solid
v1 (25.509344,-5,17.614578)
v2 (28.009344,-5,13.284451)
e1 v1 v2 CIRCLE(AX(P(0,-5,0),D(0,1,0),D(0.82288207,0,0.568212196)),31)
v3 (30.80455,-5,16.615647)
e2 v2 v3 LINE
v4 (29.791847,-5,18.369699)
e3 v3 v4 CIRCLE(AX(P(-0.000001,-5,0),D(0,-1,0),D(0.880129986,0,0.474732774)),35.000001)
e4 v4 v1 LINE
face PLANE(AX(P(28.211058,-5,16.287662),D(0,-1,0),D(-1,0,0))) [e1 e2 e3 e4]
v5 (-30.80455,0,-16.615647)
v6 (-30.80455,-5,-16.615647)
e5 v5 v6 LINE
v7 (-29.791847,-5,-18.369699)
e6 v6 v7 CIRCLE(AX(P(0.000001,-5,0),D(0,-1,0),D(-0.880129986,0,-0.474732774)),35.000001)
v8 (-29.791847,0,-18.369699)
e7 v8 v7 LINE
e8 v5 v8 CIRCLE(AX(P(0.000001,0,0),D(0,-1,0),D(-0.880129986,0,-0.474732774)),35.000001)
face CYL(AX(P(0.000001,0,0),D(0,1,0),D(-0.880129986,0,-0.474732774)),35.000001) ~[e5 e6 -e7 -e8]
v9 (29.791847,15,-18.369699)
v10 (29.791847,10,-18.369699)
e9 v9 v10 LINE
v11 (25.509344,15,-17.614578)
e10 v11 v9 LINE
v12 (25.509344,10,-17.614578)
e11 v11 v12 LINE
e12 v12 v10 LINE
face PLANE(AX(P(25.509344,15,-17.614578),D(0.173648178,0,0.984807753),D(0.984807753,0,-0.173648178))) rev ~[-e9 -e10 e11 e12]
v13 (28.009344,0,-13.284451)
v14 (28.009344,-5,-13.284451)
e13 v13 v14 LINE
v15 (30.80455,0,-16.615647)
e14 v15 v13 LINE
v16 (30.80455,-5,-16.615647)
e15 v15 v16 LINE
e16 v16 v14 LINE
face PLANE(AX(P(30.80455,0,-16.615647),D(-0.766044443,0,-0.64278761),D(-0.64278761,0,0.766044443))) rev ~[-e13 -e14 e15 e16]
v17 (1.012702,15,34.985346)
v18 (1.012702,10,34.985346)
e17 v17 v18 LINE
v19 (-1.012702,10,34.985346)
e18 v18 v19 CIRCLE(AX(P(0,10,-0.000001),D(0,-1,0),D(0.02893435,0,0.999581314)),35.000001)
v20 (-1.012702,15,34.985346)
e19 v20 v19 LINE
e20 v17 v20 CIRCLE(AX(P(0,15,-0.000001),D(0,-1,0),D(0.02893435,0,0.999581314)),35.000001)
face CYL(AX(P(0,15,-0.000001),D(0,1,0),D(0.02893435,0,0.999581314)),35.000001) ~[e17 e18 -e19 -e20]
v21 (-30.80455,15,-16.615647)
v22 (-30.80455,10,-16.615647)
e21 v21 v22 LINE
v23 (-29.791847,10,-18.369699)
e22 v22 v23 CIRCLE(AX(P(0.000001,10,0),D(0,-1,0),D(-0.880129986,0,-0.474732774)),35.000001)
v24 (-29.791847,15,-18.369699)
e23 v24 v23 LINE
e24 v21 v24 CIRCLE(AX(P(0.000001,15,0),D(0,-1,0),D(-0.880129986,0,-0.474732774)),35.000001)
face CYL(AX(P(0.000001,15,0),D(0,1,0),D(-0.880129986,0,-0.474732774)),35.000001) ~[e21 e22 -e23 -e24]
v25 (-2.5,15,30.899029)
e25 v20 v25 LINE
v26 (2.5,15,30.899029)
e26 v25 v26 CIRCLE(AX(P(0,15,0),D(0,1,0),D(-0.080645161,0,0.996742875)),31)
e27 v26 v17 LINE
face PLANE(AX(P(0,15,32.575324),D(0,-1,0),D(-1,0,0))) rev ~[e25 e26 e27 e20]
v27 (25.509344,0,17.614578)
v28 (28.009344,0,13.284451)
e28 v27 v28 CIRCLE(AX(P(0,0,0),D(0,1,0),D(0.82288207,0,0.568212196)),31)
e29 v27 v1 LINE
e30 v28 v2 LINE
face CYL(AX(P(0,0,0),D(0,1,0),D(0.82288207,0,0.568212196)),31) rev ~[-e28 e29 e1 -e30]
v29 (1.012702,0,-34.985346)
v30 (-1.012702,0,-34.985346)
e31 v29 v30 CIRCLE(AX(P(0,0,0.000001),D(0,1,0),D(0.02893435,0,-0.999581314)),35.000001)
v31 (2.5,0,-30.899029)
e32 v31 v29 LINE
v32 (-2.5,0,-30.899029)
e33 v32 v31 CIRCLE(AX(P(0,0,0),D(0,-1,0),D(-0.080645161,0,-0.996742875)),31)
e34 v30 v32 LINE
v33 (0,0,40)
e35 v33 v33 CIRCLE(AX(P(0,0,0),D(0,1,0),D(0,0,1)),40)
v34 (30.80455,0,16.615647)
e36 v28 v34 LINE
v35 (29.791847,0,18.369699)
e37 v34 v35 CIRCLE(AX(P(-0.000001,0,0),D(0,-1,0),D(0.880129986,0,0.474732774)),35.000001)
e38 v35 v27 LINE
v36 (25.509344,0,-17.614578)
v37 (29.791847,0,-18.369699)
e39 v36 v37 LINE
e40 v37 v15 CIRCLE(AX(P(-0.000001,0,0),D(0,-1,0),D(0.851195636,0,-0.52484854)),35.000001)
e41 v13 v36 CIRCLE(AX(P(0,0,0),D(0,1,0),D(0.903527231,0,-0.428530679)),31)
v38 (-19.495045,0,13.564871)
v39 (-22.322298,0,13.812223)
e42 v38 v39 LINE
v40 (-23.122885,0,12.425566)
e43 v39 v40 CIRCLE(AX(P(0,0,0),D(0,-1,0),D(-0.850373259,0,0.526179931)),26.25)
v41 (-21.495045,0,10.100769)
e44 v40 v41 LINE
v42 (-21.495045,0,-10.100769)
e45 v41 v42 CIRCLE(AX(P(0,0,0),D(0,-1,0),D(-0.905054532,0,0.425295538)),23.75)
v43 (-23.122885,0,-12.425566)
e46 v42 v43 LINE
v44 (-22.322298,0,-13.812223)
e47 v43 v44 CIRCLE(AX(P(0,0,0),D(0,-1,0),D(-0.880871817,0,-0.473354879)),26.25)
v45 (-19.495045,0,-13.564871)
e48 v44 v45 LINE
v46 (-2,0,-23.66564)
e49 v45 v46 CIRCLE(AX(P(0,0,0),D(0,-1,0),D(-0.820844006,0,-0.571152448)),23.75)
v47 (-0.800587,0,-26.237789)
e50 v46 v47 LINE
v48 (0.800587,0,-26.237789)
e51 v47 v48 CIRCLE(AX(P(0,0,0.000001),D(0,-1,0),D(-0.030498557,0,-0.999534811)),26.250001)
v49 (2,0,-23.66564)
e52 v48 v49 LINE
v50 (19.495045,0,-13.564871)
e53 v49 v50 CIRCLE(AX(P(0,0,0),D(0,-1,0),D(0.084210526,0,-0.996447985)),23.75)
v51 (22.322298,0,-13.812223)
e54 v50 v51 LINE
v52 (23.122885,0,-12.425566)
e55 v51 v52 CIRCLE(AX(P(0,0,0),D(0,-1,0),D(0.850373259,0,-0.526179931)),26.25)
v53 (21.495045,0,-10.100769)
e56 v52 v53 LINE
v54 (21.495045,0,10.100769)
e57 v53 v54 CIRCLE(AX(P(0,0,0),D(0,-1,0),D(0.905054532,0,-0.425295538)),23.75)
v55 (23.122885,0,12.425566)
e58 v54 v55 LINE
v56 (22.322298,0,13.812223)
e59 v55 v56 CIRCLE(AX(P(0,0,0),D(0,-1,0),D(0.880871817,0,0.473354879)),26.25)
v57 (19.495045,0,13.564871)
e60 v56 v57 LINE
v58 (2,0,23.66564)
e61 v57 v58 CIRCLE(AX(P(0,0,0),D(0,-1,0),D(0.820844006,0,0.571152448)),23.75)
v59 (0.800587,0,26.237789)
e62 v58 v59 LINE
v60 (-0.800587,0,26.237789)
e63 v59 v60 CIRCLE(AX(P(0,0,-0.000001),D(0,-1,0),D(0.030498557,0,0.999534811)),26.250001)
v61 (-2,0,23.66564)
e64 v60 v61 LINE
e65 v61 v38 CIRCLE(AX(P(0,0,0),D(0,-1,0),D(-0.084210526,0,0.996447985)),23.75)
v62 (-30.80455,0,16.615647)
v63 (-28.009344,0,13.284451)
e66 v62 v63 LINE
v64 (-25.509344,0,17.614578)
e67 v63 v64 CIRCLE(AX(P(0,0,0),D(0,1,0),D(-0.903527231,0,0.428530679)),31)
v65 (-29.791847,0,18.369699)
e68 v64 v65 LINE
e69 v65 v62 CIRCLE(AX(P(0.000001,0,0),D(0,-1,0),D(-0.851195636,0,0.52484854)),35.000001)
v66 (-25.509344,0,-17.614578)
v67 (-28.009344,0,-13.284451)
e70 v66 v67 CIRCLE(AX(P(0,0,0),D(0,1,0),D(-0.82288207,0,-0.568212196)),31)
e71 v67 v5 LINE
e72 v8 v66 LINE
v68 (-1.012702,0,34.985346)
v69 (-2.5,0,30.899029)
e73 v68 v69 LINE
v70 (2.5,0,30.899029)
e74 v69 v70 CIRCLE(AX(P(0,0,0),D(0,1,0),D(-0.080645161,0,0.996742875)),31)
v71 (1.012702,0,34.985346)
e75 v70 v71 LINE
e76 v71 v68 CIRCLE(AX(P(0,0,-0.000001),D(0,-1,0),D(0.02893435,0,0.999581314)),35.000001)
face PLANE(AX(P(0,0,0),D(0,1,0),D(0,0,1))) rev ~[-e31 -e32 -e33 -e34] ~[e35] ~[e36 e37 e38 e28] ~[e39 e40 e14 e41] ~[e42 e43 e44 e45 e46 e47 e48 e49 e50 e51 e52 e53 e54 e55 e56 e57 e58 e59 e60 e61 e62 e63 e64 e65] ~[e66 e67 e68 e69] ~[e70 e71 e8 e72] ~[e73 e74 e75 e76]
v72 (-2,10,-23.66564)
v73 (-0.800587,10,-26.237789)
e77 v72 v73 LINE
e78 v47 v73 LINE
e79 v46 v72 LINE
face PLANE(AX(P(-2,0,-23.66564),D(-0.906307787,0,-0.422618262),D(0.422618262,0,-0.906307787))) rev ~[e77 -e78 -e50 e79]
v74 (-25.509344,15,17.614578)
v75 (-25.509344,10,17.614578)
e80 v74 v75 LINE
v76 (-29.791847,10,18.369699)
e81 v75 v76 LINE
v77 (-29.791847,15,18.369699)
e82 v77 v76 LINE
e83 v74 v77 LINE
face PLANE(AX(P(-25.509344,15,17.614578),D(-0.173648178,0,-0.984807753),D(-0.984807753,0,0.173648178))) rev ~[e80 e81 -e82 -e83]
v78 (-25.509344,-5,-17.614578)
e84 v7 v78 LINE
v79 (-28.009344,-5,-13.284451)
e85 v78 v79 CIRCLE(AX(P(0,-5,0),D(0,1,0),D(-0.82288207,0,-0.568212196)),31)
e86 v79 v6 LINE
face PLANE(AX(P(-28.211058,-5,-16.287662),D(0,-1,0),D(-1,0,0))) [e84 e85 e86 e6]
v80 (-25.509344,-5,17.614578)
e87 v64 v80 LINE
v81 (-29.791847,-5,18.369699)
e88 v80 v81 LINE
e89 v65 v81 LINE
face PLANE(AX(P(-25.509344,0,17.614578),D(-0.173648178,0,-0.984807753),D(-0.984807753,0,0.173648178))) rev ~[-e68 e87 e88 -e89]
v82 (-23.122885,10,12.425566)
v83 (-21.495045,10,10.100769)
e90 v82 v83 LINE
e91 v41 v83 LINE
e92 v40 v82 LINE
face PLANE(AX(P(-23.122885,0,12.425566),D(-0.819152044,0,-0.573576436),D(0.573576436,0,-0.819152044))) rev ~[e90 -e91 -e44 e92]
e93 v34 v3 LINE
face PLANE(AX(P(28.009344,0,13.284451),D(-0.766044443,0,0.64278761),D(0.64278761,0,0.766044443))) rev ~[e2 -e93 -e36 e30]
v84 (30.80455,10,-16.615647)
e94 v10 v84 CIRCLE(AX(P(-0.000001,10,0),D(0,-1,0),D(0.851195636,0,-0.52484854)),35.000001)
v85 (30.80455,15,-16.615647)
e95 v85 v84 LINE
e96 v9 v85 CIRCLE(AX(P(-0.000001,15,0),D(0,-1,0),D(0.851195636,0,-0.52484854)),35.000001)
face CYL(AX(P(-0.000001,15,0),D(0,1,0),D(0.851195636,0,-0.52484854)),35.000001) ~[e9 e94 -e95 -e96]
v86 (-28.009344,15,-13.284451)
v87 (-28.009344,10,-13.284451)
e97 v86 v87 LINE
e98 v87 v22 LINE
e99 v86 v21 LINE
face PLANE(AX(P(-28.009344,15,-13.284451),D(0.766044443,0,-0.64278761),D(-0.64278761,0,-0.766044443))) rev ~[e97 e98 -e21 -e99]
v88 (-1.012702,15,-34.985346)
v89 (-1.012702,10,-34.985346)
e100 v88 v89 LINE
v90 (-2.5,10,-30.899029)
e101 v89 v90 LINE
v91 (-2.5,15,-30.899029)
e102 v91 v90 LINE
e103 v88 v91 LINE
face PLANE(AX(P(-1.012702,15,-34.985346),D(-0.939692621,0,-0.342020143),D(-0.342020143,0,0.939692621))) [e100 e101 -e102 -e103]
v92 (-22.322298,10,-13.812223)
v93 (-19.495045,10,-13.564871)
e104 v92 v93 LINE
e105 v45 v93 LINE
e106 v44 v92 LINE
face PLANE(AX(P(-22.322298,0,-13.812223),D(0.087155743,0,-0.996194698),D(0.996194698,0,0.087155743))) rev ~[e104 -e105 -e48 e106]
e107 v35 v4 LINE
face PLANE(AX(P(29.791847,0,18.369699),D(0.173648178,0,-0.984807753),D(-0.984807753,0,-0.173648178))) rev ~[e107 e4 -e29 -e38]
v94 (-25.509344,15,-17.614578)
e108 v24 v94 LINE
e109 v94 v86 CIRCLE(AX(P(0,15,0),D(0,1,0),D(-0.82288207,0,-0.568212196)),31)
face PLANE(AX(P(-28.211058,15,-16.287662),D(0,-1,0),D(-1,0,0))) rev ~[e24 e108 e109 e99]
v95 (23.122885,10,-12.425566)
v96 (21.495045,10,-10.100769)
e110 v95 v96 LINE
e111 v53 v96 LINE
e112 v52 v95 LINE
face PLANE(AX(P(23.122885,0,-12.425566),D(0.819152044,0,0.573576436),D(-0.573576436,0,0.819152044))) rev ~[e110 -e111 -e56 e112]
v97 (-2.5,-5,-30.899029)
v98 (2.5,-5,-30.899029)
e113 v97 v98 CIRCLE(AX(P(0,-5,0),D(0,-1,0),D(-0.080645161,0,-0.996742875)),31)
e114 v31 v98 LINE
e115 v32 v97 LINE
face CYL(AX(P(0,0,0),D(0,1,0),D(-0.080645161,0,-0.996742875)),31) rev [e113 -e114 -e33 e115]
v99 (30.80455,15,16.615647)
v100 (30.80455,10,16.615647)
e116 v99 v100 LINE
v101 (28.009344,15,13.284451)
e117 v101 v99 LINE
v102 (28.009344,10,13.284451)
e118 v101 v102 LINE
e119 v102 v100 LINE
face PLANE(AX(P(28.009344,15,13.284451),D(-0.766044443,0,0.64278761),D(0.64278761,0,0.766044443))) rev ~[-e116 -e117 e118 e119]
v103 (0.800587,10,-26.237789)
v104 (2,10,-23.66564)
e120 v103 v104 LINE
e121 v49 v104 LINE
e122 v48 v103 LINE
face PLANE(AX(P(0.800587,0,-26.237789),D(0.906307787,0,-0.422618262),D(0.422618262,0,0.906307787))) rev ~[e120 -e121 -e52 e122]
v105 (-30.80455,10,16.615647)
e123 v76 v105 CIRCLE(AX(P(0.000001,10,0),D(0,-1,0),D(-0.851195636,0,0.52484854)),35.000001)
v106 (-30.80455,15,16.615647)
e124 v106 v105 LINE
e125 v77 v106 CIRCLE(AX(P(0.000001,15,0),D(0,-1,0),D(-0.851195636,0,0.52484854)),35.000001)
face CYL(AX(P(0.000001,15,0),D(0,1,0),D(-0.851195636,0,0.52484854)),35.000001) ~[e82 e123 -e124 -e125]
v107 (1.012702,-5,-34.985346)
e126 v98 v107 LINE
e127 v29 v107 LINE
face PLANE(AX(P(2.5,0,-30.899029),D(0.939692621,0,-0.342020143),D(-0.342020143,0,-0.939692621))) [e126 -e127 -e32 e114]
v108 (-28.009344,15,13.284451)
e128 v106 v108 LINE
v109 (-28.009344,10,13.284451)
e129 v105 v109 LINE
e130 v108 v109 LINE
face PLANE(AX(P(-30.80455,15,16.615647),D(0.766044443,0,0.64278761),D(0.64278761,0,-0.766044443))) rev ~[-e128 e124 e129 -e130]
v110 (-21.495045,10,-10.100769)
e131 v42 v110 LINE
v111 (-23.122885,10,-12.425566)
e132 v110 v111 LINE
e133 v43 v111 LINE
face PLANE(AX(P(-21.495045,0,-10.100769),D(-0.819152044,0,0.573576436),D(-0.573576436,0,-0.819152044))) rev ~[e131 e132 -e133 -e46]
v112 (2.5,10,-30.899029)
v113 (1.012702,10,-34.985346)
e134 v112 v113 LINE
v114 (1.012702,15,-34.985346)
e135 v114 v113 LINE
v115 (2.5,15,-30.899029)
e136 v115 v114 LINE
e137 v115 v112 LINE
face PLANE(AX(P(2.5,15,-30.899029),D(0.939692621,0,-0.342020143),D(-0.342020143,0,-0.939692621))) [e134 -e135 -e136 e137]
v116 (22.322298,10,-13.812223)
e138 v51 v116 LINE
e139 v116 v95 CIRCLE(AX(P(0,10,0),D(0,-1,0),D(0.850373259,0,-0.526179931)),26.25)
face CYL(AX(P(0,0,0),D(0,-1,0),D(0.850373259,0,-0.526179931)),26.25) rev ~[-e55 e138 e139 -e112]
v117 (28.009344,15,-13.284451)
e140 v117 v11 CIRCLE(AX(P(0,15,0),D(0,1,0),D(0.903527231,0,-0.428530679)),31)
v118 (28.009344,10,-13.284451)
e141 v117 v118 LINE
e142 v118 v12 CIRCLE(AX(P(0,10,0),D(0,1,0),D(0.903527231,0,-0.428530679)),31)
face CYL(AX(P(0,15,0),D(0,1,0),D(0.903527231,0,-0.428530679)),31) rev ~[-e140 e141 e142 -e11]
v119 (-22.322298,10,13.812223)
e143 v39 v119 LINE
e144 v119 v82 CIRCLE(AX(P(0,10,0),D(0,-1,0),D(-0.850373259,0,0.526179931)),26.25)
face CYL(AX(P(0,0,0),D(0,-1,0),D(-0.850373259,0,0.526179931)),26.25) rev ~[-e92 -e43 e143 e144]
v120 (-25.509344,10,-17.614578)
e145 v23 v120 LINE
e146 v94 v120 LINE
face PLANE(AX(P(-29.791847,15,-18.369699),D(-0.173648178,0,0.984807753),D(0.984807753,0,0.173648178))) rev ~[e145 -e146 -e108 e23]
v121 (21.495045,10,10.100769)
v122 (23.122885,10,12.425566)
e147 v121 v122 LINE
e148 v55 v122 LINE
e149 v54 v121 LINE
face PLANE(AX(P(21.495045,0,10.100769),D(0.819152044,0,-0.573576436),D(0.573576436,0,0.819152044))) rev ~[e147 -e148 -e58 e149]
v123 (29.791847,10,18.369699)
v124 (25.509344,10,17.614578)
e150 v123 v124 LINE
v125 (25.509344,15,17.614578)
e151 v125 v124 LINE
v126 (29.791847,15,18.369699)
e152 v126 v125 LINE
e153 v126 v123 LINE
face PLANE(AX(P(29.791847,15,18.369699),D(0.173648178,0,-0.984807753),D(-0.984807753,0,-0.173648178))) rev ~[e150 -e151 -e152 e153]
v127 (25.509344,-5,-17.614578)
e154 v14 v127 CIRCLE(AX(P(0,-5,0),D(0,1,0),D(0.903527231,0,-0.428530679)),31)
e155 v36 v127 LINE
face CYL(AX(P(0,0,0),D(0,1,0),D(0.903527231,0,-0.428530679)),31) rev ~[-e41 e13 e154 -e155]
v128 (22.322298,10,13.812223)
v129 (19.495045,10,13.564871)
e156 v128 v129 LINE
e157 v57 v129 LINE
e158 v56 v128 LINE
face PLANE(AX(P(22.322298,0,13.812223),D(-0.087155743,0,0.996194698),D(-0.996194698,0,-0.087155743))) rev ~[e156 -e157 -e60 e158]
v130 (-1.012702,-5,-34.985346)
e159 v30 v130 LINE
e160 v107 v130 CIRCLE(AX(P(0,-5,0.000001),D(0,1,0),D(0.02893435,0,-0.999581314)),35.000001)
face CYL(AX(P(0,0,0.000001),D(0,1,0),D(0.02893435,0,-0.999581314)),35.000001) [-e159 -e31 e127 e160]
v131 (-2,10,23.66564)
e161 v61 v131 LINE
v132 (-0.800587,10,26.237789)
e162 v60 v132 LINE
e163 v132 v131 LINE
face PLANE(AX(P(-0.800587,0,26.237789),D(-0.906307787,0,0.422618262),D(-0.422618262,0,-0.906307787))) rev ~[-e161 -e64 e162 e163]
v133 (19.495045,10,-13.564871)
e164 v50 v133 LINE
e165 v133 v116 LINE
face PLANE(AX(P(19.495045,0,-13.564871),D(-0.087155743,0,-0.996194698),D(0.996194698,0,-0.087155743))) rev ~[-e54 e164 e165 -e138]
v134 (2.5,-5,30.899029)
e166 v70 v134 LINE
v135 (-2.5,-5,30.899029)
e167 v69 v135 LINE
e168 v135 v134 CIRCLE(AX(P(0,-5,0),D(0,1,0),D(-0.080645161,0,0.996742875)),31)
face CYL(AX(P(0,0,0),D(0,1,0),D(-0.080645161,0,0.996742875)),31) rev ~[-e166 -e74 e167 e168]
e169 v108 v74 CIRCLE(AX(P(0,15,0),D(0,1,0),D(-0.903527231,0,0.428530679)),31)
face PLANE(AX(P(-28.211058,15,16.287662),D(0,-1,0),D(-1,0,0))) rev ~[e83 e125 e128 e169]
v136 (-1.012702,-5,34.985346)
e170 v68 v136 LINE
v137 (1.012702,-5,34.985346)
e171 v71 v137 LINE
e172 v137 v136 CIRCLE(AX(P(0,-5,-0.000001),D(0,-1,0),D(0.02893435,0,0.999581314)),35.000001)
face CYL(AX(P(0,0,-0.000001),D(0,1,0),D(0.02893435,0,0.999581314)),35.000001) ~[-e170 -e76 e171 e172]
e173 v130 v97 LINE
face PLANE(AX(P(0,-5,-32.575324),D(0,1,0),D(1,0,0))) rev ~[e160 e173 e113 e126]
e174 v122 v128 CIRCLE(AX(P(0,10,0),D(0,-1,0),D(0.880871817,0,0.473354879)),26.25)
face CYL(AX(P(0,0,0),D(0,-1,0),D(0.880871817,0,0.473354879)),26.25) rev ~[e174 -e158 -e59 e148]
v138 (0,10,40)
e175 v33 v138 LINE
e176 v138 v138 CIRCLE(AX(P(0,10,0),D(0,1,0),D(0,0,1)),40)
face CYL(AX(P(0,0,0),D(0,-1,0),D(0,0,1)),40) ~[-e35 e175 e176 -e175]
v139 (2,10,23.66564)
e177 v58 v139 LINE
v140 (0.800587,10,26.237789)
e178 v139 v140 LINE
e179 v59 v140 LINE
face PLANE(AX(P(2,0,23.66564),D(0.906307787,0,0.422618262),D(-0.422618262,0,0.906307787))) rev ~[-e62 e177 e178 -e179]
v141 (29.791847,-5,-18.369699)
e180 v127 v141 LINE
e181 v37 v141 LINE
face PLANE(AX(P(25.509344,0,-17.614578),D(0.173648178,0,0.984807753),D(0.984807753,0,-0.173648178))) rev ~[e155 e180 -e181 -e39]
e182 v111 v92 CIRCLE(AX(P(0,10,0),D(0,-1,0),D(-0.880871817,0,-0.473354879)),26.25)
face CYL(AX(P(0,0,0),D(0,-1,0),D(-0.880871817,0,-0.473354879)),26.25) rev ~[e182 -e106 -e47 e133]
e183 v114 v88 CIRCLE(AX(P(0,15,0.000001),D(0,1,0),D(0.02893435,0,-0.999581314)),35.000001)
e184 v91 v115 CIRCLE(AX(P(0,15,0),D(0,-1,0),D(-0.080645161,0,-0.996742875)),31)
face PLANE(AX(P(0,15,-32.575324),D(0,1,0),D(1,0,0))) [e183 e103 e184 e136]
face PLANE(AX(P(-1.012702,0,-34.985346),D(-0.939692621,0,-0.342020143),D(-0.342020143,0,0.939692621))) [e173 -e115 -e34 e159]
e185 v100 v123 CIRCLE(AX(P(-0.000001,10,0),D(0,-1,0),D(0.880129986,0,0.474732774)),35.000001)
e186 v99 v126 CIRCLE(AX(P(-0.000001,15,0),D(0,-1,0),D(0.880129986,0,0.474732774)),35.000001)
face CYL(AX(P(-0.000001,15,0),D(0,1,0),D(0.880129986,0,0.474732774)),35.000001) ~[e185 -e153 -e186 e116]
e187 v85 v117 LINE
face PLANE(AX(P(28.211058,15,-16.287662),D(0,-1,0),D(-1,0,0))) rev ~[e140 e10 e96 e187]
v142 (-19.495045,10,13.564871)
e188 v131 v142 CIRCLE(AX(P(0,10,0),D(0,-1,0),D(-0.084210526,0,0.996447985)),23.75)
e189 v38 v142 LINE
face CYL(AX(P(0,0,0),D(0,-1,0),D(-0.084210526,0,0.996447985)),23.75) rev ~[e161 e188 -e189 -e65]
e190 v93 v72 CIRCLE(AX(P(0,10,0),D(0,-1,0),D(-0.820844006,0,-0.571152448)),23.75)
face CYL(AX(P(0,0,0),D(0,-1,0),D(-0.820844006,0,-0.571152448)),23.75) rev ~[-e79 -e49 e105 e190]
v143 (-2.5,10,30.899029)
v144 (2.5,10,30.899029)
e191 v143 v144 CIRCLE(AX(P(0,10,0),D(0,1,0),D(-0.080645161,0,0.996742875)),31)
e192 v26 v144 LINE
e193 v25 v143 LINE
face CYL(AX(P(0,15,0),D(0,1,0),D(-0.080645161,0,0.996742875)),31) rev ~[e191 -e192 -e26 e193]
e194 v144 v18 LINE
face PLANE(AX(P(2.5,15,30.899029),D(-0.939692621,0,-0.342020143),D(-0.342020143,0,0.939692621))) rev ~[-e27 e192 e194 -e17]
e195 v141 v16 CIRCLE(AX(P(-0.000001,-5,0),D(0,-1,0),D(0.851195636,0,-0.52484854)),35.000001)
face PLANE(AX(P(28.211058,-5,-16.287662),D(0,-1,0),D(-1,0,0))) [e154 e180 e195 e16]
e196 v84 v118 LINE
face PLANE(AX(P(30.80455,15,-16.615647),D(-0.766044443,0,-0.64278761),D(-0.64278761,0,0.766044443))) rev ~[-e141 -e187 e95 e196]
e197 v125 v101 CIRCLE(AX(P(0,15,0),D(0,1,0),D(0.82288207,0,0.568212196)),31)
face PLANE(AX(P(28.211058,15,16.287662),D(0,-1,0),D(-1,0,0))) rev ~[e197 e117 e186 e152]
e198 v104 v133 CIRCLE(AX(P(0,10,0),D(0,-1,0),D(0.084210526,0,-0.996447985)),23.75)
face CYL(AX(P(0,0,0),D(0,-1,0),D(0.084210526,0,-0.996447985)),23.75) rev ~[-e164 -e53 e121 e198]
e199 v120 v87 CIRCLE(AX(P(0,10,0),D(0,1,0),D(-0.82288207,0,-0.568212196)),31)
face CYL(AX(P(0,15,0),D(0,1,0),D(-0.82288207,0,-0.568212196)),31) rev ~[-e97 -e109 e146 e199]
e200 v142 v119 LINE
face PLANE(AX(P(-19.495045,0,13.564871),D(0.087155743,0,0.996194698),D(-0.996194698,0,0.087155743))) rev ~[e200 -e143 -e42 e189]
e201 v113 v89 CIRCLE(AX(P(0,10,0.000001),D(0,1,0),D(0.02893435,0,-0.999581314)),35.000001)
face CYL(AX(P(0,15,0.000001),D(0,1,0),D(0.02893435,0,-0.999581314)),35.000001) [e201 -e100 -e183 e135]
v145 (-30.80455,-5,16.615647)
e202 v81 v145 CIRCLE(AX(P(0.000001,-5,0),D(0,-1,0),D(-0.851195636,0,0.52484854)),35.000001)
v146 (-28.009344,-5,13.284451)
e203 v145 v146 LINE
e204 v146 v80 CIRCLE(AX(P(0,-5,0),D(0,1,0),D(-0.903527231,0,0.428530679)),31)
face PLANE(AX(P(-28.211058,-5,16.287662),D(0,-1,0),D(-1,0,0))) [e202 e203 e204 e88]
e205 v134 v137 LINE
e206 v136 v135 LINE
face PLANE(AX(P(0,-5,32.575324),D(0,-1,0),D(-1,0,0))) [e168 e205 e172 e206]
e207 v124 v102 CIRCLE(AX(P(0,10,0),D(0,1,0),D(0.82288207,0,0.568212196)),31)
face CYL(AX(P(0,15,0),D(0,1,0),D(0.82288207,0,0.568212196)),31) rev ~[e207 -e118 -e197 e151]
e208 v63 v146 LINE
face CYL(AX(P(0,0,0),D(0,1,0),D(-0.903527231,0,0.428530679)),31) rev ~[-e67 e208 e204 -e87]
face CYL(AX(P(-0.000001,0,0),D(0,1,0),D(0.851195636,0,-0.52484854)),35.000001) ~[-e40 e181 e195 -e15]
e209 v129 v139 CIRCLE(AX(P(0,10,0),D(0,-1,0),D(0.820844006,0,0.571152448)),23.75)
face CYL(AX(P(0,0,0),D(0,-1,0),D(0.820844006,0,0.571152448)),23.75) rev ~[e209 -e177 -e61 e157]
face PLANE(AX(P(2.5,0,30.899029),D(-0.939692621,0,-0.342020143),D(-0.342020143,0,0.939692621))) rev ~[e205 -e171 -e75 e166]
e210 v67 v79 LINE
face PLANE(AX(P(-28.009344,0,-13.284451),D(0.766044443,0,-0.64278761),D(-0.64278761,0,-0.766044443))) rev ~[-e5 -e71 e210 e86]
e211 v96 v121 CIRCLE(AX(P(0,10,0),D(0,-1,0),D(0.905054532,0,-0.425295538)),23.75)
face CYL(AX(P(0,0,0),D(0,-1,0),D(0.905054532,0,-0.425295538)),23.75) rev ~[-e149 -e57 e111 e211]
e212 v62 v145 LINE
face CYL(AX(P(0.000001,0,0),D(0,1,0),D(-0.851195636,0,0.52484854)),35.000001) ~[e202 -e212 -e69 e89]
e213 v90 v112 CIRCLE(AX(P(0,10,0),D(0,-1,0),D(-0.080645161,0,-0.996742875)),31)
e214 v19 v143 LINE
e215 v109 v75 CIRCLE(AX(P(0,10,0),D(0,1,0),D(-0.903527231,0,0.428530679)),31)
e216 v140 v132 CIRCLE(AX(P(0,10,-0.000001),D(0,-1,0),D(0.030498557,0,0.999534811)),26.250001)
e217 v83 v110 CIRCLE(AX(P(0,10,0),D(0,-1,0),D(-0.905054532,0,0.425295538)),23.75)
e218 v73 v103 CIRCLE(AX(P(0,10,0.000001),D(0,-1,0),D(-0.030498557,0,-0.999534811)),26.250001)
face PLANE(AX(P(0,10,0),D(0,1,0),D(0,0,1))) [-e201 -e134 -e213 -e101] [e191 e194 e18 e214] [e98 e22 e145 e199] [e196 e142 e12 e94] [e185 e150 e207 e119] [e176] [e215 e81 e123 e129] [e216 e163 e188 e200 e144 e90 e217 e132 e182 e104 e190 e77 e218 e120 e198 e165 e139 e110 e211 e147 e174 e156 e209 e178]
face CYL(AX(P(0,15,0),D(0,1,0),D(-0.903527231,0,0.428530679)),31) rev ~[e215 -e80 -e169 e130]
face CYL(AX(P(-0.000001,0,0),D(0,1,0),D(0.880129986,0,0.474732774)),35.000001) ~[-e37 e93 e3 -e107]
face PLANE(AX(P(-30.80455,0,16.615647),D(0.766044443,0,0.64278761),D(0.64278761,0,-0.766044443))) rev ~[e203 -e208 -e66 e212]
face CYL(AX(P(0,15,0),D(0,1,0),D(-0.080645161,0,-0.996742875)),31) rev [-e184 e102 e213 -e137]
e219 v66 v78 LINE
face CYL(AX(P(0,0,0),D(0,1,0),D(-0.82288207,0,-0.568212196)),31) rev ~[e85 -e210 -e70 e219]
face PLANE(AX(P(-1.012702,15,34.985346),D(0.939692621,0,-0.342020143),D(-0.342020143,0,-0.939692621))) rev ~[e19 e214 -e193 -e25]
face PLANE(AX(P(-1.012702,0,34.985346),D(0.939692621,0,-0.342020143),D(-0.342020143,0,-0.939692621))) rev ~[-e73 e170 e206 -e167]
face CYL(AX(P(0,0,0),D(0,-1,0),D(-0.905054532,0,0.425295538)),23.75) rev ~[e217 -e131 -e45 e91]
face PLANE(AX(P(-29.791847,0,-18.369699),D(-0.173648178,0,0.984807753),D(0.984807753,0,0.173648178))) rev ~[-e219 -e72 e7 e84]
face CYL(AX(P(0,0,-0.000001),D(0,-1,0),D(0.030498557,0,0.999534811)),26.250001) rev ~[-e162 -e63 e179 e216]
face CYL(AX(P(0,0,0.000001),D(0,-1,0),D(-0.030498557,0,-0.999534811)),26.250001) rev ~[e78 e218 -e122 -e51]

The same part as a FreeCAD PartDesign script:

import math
import FreeCAD as App
import Part
import Sketcher
Q = App.Units.Quantity

doc = App.newDocument("Part")
body = doc.addObject("PartDesign::Body", "Body")

# Sketch on XZ plane
sketch1 = body.newObject("Sketcher::SketchObject", "Sketch")
sketch1.AttachmentSupport = (doc.getObject("XZ_Plane"), [""])
sketch1.MapMode = "FlatFace"
sketch1.addGeometry([
    Part.Circle(App.Vector(0, 0, 0), App.Vector(0, 0, 1), 40),  # 0
    Part.ArcOfCircle(Part.Circle(App.Vector(0, 0, 0), App.Vector(0, 0, 1), 23.7), math.radians(-145), math.radians(-95)),  # 1
    Part.LineSegment(App.Vector(-2, -23.7, 0), App.Vector(-0.8, -26.2, 0)),  # 2
    Part.ArcOfCircle(Part.Circle(App.Vector(0, 0, 0), App.Vector(0, 0, 1), 26.3), math.radians(-91.75), math.radians(-88.25)),  # 3
    Part.LineSegment(App.Vector(0.8, -26.2, 0), App.Vector(2, -23.7, 0)),  # 4
    Part.ArcOfCircle(Part.Circle(App.Vector(0, 0, 0), App.Vector(0, 0, 1), 23.7), math.radians(-85), math.radians(-35)),  # 5
    Part.LineSegment(App.Vector(19.5, -13.6, 0), App.Vector(22.3, -13.8, 0)),  # 6
    Part.ArcOfCircle(Part.Circle(App.Vector(0, 0, 0), App.Vector(0, 0, 1), 26.3), math.radians(-31.75), math.radians(-28.25)),  # 7
    Part.LineSegment(App.Vector(23.1, -12.4, 0), App.Vector(21.5, -10.1, 0)),  # 8
    Part.ArcOfCircle(Part.Circle(App.Vector(0, 0, 0), App.Vector(0, 0, 1), 23.8), math.radians(-25), math.radians(25)),  # 9
    Part.LineSegment(App.Vector(21.5, 10.1, 0), App.Vector(23.1, 12.4, 0)),  # 10
    Part.ArcOfCircle(Part.Circle(App.Vector(0, 0, 0), App.Vector(0, 0, 1), 26.3), math.radians(28.25), math.radians(31.75)),  # 11
    Part.LineSegment(App.Vector(22.3, 13.8, 0), App.Vector(19.5, 13.6, 0)),  # 12
    Part.ArcOfCircle(Part.Circle(App.Vector(0, 0, 0), App.Vector(0, 0, 1), 23.7), math.radians(35), math.radians(85)),  # 13
    Part.LineSegment(App.Vector(2, 23.7, 0), App.Vector(0.8, 26.2, 0)),  # 14
    Part.ArcOfCircle(Part.Circle(App.Vector(0, 0, 0), App.Vector(0, 0, 1), 26.3), math.radians(88.25), math.radians(91.75)),  # 15
    Part.LineSegment(App.Vector(-0.8, 26.2, 0), App.Vector(-2, 23.7, 0)),  # 16
    Part.ArcOfCircle(Part.Circle(App.Vector(0, 0, 0), App.Vector(0, 0, 1), 23.7), math.radians(95), math.radians(145)),  # 17
    Part.LineSegment(App.Vector(-19.5, 13.6, 0), App.Vector(-22.3, 13.8, 0)),  # 18
    Part.ArcOfCircle(Part.Circle(App.Vector(0, 0, 0), App.Vector(0, 0, 1), 26.3), math.radians(148.25), math.radians(151.75)),  # 19
    Part.LineSegment(App.Vector(-23.1, 12.4, 0), App.Vector(-21.5, 10.1, 0)),  # 20
    Part.ArcOfCircle(Part.Circle(App.Vector(0, 0, 0), App.Vector(0, 0, 1), 23.8), math.radians(155), math.radians(205)),  # 21
    Part.LineSegment(App.Vector(-21.5, -10.1, 0), App.Vector(-23.1, -12.4, 0)),  # 22
    Part.ArcOfCircle(Part.Circle(App.Vector(0, 0, 0), App.Vector(0, 0, 1), 26.3), math.radians(-151.75), math.radians(-148.25)),  # 23
    Part.LineSegment(App.Vector(-22.3, -13.8, 0), App.Vector(-19.5, -13.6, 0)),  # 24
], False)
sketch1.addConstraint([
    Sketcher.Constraint("Coincident", 1, 2, 2, 1),
    Sketcher.Constraint("Coincident", 2, 2, 3, 1),
    Sketcher.Constraint("Coincident", 3, 2, 4, 1),
    Sketcher.Constraint("Coincident", 4, 2, 5, 1),
    Sketcher.Constraint("Coincident", 5, 2, 6, 1),
    Sketcher.Constraint("Coincident", 6, 2, 7, 1),
    Sketcher.Constraint("Coincident", 7, 2, 8, 1),
    Sketcher.Constraint("Coincident", 8, 2, 9, 1),
    Sketcher.Constraint("Coincident", 9, 2, 10, 1),
    Sketcher.Constraint("Coincident", 10, 2, 11, 1),
    Sketcher.Constraint("Coincident", 11, 2, 12, 1),
    Sketcher.Constraint("Coincident", 12, 2, 13, 1),
    Sketcher.Constraint("Coincident", 13, 2, 14, 1),
    Sketcher.Constraint("Coincident", 14, 2, 15, 1),
    Sketcher.Constraint("Coincident", 15, 2, 16, 1),
    Sketcher.Constraint("Coincident", 16, 2, 17, 1),
    Sketcher.Constraint("Coincident", 17, 2, 18, 1),
    Sketcher.Constraint("Coincident", 18, 2, 19, 1),
    Sketcher.Constraint("Coincident", 19, 2, 20, 1),
    Sketcher.Constraint("Coincident", 20, 2, 21, 1),
    Sketcher.Constraint("Coincident", 21, 2, 22, 1),
    Sketcher.Constraint("Coincident", 22, 2, 23, 1),
    Sketcher.Constraint("Coincident", 23, 2, 24, 1),
    Sketcher.Constraint("Coincident", 24, 2, 1, 1),
    Sketcher.Constraint("Coincident", 0, 3, -1, 1),
    Sketcher.Constraint("Coincident", 1, 3, -1, 1),
    Sketcher.Constraint("Coincident", 3, 3, -1, 1),
    Sketcher.Constraint("Coincident", 5, 3, -1, 1),
    Sketcher.Constraint("Coincident", 7, 3, -1, 1),
    Sketcher.Constraint("Coincident", 9, 3, -1, 1),
    Sketcher.Constraint("Coincident", 11, 3, -1, 1),
    Sketcher.Constraint("Coincident", 13, 3, -1, 1),
    Sketcher.Constraint("Coincident", 15, 3, -1, 1),
    Sketcher.Constraint("Coincident", 17, 3, -1, 1),
    Sketcher.Constraint("Coincident", 19, 3, -1, 1),
    Sketcher.Constraint("Coincident", 21, 3, -1, 1),
    Sketcher.Constraint("Coincident", 23, 3, -1, 1),
    Sketcher.Constraint("Equal", 1, 5),
    Sketcher.Constraint("Equal", 3, 7),
    Sketcher.Constraint("Equal", 5, 9),
    Sketcher.Constraint("Equal", 7, 11),
    Sketcher.Constraint("Equal", 9, 13),
    Sketcher.Constraint("Equal", 11, 15),
    Sketcher.Constraint("Equal", 13, 17),
    Sketcher.Constraint("Equal", 15, 19),
    Sketcher.Constraint("Equal", 17, 21),
    Sketcher.Constraint("Equal", 19, 23),
    Sketcher.Constraint("Parallel", 2, 14),
    Sketcher.Constraint("Parallel", 4, 16),
    Sketcher.Constraint("Parallel", 6, 18),
    Sketcher.Constraint("Parallel", 8, 20),
    Sketcher.Constraint("Parallel", 10, 22),
    Sketcher.Constraint("Parallel", 12, 24),
    Sketcher.Constraint("Horizontal", 2, 2, 3, 2),
    Sketcher.Constraint("Horizontal", 1, 2, 4, 2),
    Sketcher.Constraint("Horizontal", 14, 2, 15, 2),
    Sketcher.Constraint("Horizontal", 12, 2, 17, 2),
    Sketcher.Constraint("Horizontal", 11, 2, 18, 2),
    Sketcher.Constraint("Horizontal", 10, 2, 19, 2),
    Sketcher.Constraint("Horizontal", 9, 2, 20, 2),
    Sketcher.Constraint("Horizontal", 8, 2, 21, 2),
    Sketcher.Constraint("Horizontal", 6, 2, 23, 2),
    Sketcher.Constraint("Vertical", 8, 2, 9, 2),
    Sketcher.Constraint("Vertical", 6, 2, 11, 2),
    Sketcher.Constraint("Vertical", 4, 2, 13, 2),
    Sketcher.Constraint("Equal", 4, 6),
    Sketcher.Constraint("Equal", 6, 8),
    Sketcher.Constraint("Diameter", 0, Q("80 mm")),
    Sketcher.Constraint("Angle", 2, Q("-65 deg")),
    Sketcher.Constraint("Angle", 6, Q("-5 deg")),
    Sketcher.Constraint("Angle", 8, Q("125 deg")),
    Sketcher.Constraint("Radius", 1, Q("23.75 mm")),
    Sketcher.Constraint("Radius", 3, Q("26.250001 mm")),
    Sketcher.Constraint("DistanceX", 1, 2, -1, 1, Q("2 mm")),
])
pad1 = body.newObject("PartDesign::Pad", "Pad")
pad1.Profile = sketch1
pad1.Length = 10
pad1.Reversed = True

# Sketch on XZ plane
sketch2 = body.newObject("Sketcher::SketchObject", "Sketch001")
sketch2.AttachmentSupport = (doc.getObject("XZ_Plane"), [""])
sketch2.MapMode = "FlatFace"
sketch2.addGeometry([
    Part.LineSegment(App.Vector(2.5, -30.9, 0), App.Vector(1, -35, 0)),  # 0
    Part.ArcOfCircle(Part.Circle(App.Vector(0, 0, 0), App.Vector(0, 0, 1), 35), math.radians(-91.66), math.radians(-88.34)),  # 1
    Part.LineSegment(App.Vector(-1, -35, 0), App.Vector(-2.5, -30.9, 0)),  # 2
    Part.ArcOfCircle(Part.Circle(App.Vector(0, 0, 0), App.Vector(0, 0, 1), 31), math.radians(-94.63), math.radians(-85.37)),  # 3
    Part.LineSegment(App.Vector(29.8, -18.4, 0), App.Vector(25.5, -17.6, 0)),  # 4
    Part.ArcOfCircle(Part.Circle(App.Vector(0, 0, 0), App.Vector(0, 0, 1), 31), math.radians(-34.63), math.radians(-25.37)),  # 5
    Part.LineSegment(App.Vector(28, -13.3, 0), App.Vector(30.8, -16.6, 0)),  # 6
    Part.ArcOfCircle(Part.Circle(App.Vector(0, 0, 0), App.Vector(0, 0, 1), 35), math.radians(-31.66), math.radians(-28.34)),  # 7
    Part.LineSegment(App.Vector(30.8, 16.6, 0), App.Vector(28, 13.3, 0)),  # 8
    Part.ArcOfCircle(Part.Circle(App.Vector(0, 0, 0), App.Vector(0, 0, 1), 31), math.radians(25.37), math.radians(34.63)),  # 9
    Part.LineSegment(App.Vector(25.5, 17.6, 0), App.Vector(29.8, 18.4, 0)),  # 10
    Part.ArcOfCircle(Part.Circle(App.Vector(0, 0, 0), App.Vector(0, 0, 1), 35), math.radians(28.34), math.radians(31.66)),  # 11
    Part.LineSegment(App.Vector(1, 35, 0), App.Vector(2.5, 30.9, 0)),  # 12
    Part.ArcOfCircle(Part.Circle(App.Vector(0, 0, 0), App.Vector(0, 0, 1), 31), math.radians(85.37), math.radians(94.63)),  # 13
    Part.LineSegment(App.Vector(-2.5, 30.9, 0), App.Vector(-1, 35, 0)),  # 14
    Part.ArcOfCircle(Part.Circle(App.Vector(0, 0, 0), App.Vector(0, 0, 1), 35), math.radians(88.34), math.radians(91.66)),  # 15
    Part.LineSegment(App.Vector(-29.8, 18.4, 0), App.Vector(-25.5, 17.6, 0)),  # 16
    Part.ArcOfCircle(Part.Circle(App.Vector(0, 0, 0), App.Vector(0, 0, 1), 31), math.radians(145.37), math.radians(154.63)),  # 17
    Part.LineSegment(App.Vector(-28, 13.3, 0), App.Vector(-30.8, 16.6, 0)),  # 18
    Part.ArcOfCircle(Part.Circle(App.Vector(0, 0, 0), App.Vector(0, 0, 1), 35), math.radians(148.34), math.radians(151.66)),  # 19
    Part.LineSegment(App.Vector(-30.8, -16.6, 0), App.Vector(-28, -13.3, 0)),  # 20
    Part.ArcOfCircle(Part.Circle(App.Vector(0, 0, 0), App.Vector(0, 0, 1), 31), math.radians(-154.63), math.radians(-145.37)),  # 21
    Part.LineSegment(App.Vector(-25.5, -17.6, 0), App.Vector(-29.8, -18.4, 0)),  # 22
    Part.ArcOfCircle(Part.Circle(App.Vector(0, 0, 0), App.Vector(0, 0, 1), 35), math.radians(-151.66), math.radians(-148.34)),  # 23
], False)
sketch2.addConstraint([
    Sketcher.Constraint("Coincident", 0, 2, 1, 2),
    Sketcher.Constraint("Coincident", 1, 1, 2, 1),
    Sketcher.Constraint("Coincident", 2, 2, 3, 1),
    Sketcher.Constraint("Coincident", 3, 2, 0, 1),
    Sketcher.Constraint("Coincident", 4, 2, 5, 1),
    Sketcher.Constraint("Coincident", 5, 2, 6, 1),
    Sketcher.Constraint("Coincident", 6, 2, 7, 2),
    Sketcher.Constraint("Coincident", 7, 1, 4, 1),
    Sketcher.Constraint("Coincident", 8, 2, 9, 1),
    Sketcher.Constraint("Coincident", 9, 2, 10, 1),
    Sketcher.Constraint("Coincident", 10, 2, 11, 2),
    Sketcher.Constraint("Coincident", 11, 1, 8, 1),
    Sketcher.Constraint("Coincident", 12, 2, 13, 1),
    Sketcher.Constraint("Coincident", 13, 2, 14, 1),
    Sketcher.Constraint("Coincident", 14, 2, 15, 2),
    Sketcher.Constraint("Coincident", 15, 1, 12, 1),
    Sketcher.Constraint("Coincident", 16, 2, 17, 1),
    Sketcher.Constraint("Coincident", 17, 2, 18, 1),
    Sketcher.Constraint("Coincident", 18, 2, 19, 2),
    Sketcher.Constraint("Coincident", 19, 1, 16, 1),
    Sketcher.Constraint("Coincident", 20, 2, 21, 1),
    Sketcher.Constraint("Coincident", 21, 2, 22, 1),
    Sketcher.Constraint("Coincident", 22, 2, 23, 2),
    Sketcher.Constraint("Coincident", 23, 1, 20, 1),
    Sketcher.Constraint("Coincident", 1, 3, -1, 1),
    Sketcher.Constraint("Coincident", 3, 3, -1, 1),
    Sketcher.Constraint("Coincident", 5, 3, -1, 1),
    Sketcher.Constraint("Coincident", 7, 3, -1, 1),
    Sketcher.Constraint("Coincident", 9, 3, -1, 1),
    Sketcher.Constraint("Coincident", 11, 3, -1, 1),
    Sketcher.Constraint("Coincident", 13, 3, -1, 1),
    Sketcher.Constraint("Coincident", 15, 3, -1, 1),
    Sketcher.Constraint("Coincident", 17, 3, -1, 1),
    Sketcher.Constraint("Coincident", 19, 3, -1, 1),
    Sketcher.Constraint("Coincident", 21, 3, -1, 1),
    Sketcher.Constraint("Coincident", 23, 3, -1, 1),
    Sketcher.Constraint("Equal", 3, 5),
    Sketcher.Constraint("Equal", 1, 7),
    Sketcher.Constraint("Equal", 5, 9),
    Sketcher.Constraint("Equal", 7, 11),
    Sketcher.Constraint("Equal", 9, 13),
    Sketcher.Constraint("Equal", 11, 15),
    Sketcher.Constraint("Equal", 13, 17),
    Sketcher.Constraint("Equal", 15, 19),
    Sketcher.Constraint("Equal", 17, 21),
    Sketcher.Constraint("Equal", 19, 23),
    Sketcher.Constraint("Parallel", 2, 12),
    Sketcher.Constraint("Parallel", 0, 14),
    Sketcher.Constraint("Parallel", 4, 16),
    Sketcher.Constraint("Parallel", 6, 18),
    Sketcher.Constraint("Parallel", 8, 20),
    Sketcher.Constraint("Parallel", 10, 22),
    Sketcher.Constraint("Horizontal", 0, 2, 1, 1),
    Sketcher.Constraint("Horizontal", 2, 2, 3, 2),
    Sketcher.Constraint("Horizontal", 12, 2, 13, 2),
    Sketcher.Constraint("Horizontal", 9, 2, 16, 2),
    Sketcher.Constraint("Horizontal", 8, 2, 17, 2),
    Sketcher.Constraint("Horizontal", 11, 1, 18, 2),
    Sketcher.Constraint("Horizontal", 10, 2, 19, 1),
    Sketcher.Constraint("Horizontal", 5, 2, 20, 2),
    Sketcher.Constraint("Horizontal", 4, 2, 21, 2),
    Sketcher.Constraint("Vertical", 5, 2, 8, 2),
    Sketcher.Constraint("Vertical", 4, 2, 9, 2),
    Sketcher.Constraint("Vertical", 3, 2, 12, 2),
    Sketcher.Constraint("Equal", 2, 4),
    Sketcher.Constraint("Equal", 4, 6),
    Sketcher.Constraint("Radius", 1, Q("35.000001 mm")),
    Sketcher.Constraint("Radius", 3, Q("31 mm")),
    Sketcher.Constraint("Angle", 0, Q("-110 deg")),
    Sketcher.Constraint("Angle", 4, Q("170 deg")),
    Sketcher.Constraint("Angle", 6, Q("-50 deg")),
    Sketcher.Constraint("DistanceX", 2, 2, 3, 2, Q("5 mm")),
])
pad2 = body.newObject("PartDesign::Pad", "Pad001")
pad2.Profile = sketch2
pad2.Length = 5

# Sketch on XZ plane
sketch3 = body.newObject("Sketcher::SketchObject", "Sketch002")
sketch3.AttachmentSupport = (doc.getObject("XZ_Plane"), [""])
sketch3.MapMode = "FlatFace"
sketch3.AttachmentOffset = App.Placement(App.Vector(0, 0, -15), App.Rotation())
sketch3.addGeometry([
    Part.LineSegment(App.Vector(2.5, -30.9, 0), App.Vector(1, -35, 0)),  # 0
    Part.ArcOfCircle(Part.Circle(App.Vector(0, 0, 0), App.Vector(0, 0, 1), 35), math.radians(-91.66), math.radians(-88.34)),  # 1
    Part.LineSegment(App.Vector(-1, -35, 0), App.Vector(-2.5, -30.9, 0)),  # 2
    Part.ArcOfCircle(Part.Circle(App.Vector(0, 0, 0), App.Vector(0, 0, 1), 31), math.radians(-94.63), math.radians(-85.37)),  # 3
    Part.LineSegment(App.Vector(29.8, -18.4, 0), App.Vector(25.5, -17.6, 0)),  # 4
    Part.ArcOfCircle(Part.Circle(App.Vector(0, 0, 0), App.Vector(0, 0, 1), 31), math.radians(-34.63), math.radians(-25.37)),  # 5
    Part.LineSegment(App.Vector(28, -13.3, 0), App.Vector(30.8, -16.6, 0)),  # 6
    Part.ArcOfCircle(Part.Circle(App.Vector(0, 0, 0), App.Vector(0, 0, 1), 35), math.radians(-31.66), math.radians(-28.34)),  # 7
    Part.LineSegment(App.Vector(30.8, 16.6, 0), App.Vector(28, 13.3, 0)),  # 8
    Part.ArcOfCircle(Part.Circle(App.Vector(0, 0, 0), App.Vector(0, 0, 1), 31), math.radians(25.37), math.radians(34.63)),  # 9
    Part.LineSegment(App.Vector(25.5, 17.6, 0), App.Vector(29.8, 18.4, 0)),  # 10
    Part.ArcOfCircle(Part.Circle(App.Vector(0, 0, 0), App.Vector(0, 0, 1), 35), math.radians(28.34), math.radians(31.66)),  # 11
    Part.LineSegment(App.Vector(1, 35, 0), App.Vector(2.5, 30.9, 0)),  # 12
    Part.ArcOfCircle(Part.Circle(App.Vector(0, 0, 0), App.Vector(0, 0, 1), 31), math.radians(85.37), math.radians(94.63)),  # 13
    Part.LineSegment(App.Vector(-2.5, 30.9, 0), App.Vector(-1, 35, 0)),  # 14
    Part.ArcOfCircle(Part.Circle(App.Vector(0, 0, 0), App.Vector(0, 0, 1), 35), math.radians(88.34), math.radians(91.66)),  # 15
    Part.LineSegment(App.Vector(-29.8, 18.4, 0), App.Vector(-25.5, 17.6, 0)),  # 16
    Part.ArcOfCircle(Part.Circle(App.Vector(0, 0, 0), App.Vector(0, 0, 1), 31), math.radians(145.37), math.radians(154.63)),  # 17
    Part.LineSegment(App.Vector(-28, 13.3, 0), App.Vector(-30.8, 16.6, 0)),  # 18
    Part.ArcOfCircle(Part.Circle(App.Vector(0, 0, 0), App.Vector(0, 0, 1), 35), math.radians(148.34), math.radians(151.66)),  # 19
    Part.LineSegment(App.Vector(-30.8, -16.6, 0), App.Vector(-28, -13.3, 0)),  # 20
    Part.ArcOfCircle(Part.Circle(App.Vector(0, 0, 0), App.Vector(0, 0, 1), 31), math.radians(-154.63), math.radians(-145.37)),  # 21
    Part.LineSegment(App.Vector(-25.5, -17.6, 0), App.Vector(-29.8, -18.4, 0)),  # 22
    Part.ArcOfCircle(Part.Circle(App.Vector(0, 0, 0), App.Vector(0, 0, 1), 35), math.radians(-151.66), math.radians(-148.34)),  # 23
], False)
sketch3.addConstraint([
    Sketcher.Constraint("Coincident", 0, 2, 1, 2),
    Sketcher.Constraint("Coincident", 1, 1, 2, 1),
    Sketcher.Constraint("Coincident", 2, 2, 3, 1),
    Sketcher.Constraint("Coincident", 3, 2, 0, 1),
    Sketcher.Constraint("Coincident", 4, 2, 5, 1),
    Sketcher.Constraint("Coincident", 5, 2, 6, 1),
    Sketcher.Constraint("Coincident", 6, 2, 7, 2),
    Sketcher.Constraint("Coincident", 7, 1, 4, 1),
    Sketcher.Constraint("Coincident", 8, 2, 9, 1),
    Sketcher.Constraint("Coincident", 9, 2, 10, 1),
    Sketcher.Constraint("Coincident", 10, 2, 11, 2),
    Sketcher.Constraint("Coincident", 11, 1, 8, 1),
    Sketcher.Constraint("Coincident", 12, 2, 13, 1),
    Sketcher.Constraint("Coincident", 13, 2, 14, 1),
    Sketcher.Constraint("Coincident", 14, 2, 15, 2),
    Sketcher.Constraint("Coincident", 15, 1, 12, 1),
    Sketcher.Constraint("Coincident", 16, 2, 17, 1),
    Sketcher.Constraint("Coincident", 17, 2, 18, 1),
    Sketcher.Constraint("Coincident", 18, 2, 19, 2),
    Sketcher.Constraint("Coincident", 19, 1, 16, 1),
    Sketcher.Constraint("Coincident", 20, 2, 21, 1),
    Sketcher.Constraint("Coincident", 21, 2, 22, 1),
    Sketcher.Constraint("Coincident", 22, 2, 23, 2),
    Sketcher.Constraint("Coincident", 23, 1, 20, 1),
    Sketcher.Constraint("Coincident", 1, 3, -1, 1),
    Sketcher.Constraint("Coincident", 3, 3, -1, 1),
    Sketcher.Constraint("Coincident", 5, 3, -1, 1),
    Sketcher.Constraint("Coincident", 7, 3, -1, 1),
    Sketcher.Constraint("Coincident", 9, 3, -1, 1),
    Sketcher.Constraint("Coincident", 11, 3, -1, 1),
    Sketcher.Constraint("Coincident", 13, 3, -1, 1),
    Sketcher.Constraint("Coincident", 15, 3, -1, 1),
    Sketcher.Constraint("Coincident", 17, 3, -1, 1),
    Sketcher.Constraint("Coincident", 19, 3, -1, 1),
    Sketcher.Constraint("Coincident", 21, 3, -1, 1),
    Sketcher.Constraint("Coincident", 23, 3, -1, 1),
    Sketcher.Constraint("Equal", 3, 5),
    Sketcher.Constraint("Equal", 1, 7),
    Sketcher.Constraint("Equal", 5, 9),
    Sketcher.Constraint("Equal", 7, 11),
    Sketcher.Constraint("Equal", 9, 13),
    Sketcher.Constraint("Equal", 11, 15),
    Sketcher.Constraint("Equal", 13, 17),
    Sketcher.Constraint("Equal", 15, 19),
    Sketcher.Constraint("Equal", 17, 21),
    Sketcher.Constraint("Equal", 19, 23),
    Sketcher.Constraint("Parallel", 2, 12),
    Sketcher.Constraint("Parallel", 0, 14),
    Sketcher.Constraint("Parallel", 4, 16),
    Sketcher.Constraint("Parallel", 6, 18),
    Sketcher.Constraint("Parallel", 8, 20),
    Sketcher.Constraint("Parallel", 10, 22),
    Sketcher.Constraint("Horizontal", 0, 2, 1, 1),
    Sketcher.Constraint("Horizontal", 2, 2, 3, 2),
    Sketcher.Constraint("Horizontal", 12, 2, 13, 2),
    Sketcher.Constraint("Horizontal", 9, 2, 16, 2),
    Sketcher.Constraint("Horizontal", 8, 2, 17, 2),
    Sketcher.Constraint("Horizontal", 11, 1, 18, 2),
    Sketcher.Constraint("Horizontal", 10, 2, 19, 1),
    Sketcher.Constraint("Horizontal", 5, 2, 20, 2),
    Sketcher.Constraint("Horizontal", 4, 2, 21, 2),
    Sketcher.Constraint("Vertical", 5, 2, 8, 2),
    Sketcher.Constraint("Vertical", 4, 2, 9, 2),
    Sketcher.Constraint("Vertical", 3, 2, 12, 2),
    Sketcher.Constraint("Equal", 2, 4),
    Sketcher.Constraint("Equal", 4, 6),
    Sketcher.Constraint("Radius", 1, Q("35.000001 mm")),
    Sketcher.Constraint("Radius", 3, Q("31 mm")),
    Sketcher.Constraint("Angle", 0, Q("-110 deg")),
    Sketcher.Constraint("Angle", 4, Q("170 deg")),
    Sketcher.Constraint("Angle", 6, Q("-50 deg")),
    Sketcher.Constraint("DistanceX", 2, 2, 3, 2, Q("5 mm")),
])
pad3 = body.newObject("PartDesign::Pad", "Pad002")
pad3.Profile = sketch3
pad3.Length = 5

doc.recompute()
